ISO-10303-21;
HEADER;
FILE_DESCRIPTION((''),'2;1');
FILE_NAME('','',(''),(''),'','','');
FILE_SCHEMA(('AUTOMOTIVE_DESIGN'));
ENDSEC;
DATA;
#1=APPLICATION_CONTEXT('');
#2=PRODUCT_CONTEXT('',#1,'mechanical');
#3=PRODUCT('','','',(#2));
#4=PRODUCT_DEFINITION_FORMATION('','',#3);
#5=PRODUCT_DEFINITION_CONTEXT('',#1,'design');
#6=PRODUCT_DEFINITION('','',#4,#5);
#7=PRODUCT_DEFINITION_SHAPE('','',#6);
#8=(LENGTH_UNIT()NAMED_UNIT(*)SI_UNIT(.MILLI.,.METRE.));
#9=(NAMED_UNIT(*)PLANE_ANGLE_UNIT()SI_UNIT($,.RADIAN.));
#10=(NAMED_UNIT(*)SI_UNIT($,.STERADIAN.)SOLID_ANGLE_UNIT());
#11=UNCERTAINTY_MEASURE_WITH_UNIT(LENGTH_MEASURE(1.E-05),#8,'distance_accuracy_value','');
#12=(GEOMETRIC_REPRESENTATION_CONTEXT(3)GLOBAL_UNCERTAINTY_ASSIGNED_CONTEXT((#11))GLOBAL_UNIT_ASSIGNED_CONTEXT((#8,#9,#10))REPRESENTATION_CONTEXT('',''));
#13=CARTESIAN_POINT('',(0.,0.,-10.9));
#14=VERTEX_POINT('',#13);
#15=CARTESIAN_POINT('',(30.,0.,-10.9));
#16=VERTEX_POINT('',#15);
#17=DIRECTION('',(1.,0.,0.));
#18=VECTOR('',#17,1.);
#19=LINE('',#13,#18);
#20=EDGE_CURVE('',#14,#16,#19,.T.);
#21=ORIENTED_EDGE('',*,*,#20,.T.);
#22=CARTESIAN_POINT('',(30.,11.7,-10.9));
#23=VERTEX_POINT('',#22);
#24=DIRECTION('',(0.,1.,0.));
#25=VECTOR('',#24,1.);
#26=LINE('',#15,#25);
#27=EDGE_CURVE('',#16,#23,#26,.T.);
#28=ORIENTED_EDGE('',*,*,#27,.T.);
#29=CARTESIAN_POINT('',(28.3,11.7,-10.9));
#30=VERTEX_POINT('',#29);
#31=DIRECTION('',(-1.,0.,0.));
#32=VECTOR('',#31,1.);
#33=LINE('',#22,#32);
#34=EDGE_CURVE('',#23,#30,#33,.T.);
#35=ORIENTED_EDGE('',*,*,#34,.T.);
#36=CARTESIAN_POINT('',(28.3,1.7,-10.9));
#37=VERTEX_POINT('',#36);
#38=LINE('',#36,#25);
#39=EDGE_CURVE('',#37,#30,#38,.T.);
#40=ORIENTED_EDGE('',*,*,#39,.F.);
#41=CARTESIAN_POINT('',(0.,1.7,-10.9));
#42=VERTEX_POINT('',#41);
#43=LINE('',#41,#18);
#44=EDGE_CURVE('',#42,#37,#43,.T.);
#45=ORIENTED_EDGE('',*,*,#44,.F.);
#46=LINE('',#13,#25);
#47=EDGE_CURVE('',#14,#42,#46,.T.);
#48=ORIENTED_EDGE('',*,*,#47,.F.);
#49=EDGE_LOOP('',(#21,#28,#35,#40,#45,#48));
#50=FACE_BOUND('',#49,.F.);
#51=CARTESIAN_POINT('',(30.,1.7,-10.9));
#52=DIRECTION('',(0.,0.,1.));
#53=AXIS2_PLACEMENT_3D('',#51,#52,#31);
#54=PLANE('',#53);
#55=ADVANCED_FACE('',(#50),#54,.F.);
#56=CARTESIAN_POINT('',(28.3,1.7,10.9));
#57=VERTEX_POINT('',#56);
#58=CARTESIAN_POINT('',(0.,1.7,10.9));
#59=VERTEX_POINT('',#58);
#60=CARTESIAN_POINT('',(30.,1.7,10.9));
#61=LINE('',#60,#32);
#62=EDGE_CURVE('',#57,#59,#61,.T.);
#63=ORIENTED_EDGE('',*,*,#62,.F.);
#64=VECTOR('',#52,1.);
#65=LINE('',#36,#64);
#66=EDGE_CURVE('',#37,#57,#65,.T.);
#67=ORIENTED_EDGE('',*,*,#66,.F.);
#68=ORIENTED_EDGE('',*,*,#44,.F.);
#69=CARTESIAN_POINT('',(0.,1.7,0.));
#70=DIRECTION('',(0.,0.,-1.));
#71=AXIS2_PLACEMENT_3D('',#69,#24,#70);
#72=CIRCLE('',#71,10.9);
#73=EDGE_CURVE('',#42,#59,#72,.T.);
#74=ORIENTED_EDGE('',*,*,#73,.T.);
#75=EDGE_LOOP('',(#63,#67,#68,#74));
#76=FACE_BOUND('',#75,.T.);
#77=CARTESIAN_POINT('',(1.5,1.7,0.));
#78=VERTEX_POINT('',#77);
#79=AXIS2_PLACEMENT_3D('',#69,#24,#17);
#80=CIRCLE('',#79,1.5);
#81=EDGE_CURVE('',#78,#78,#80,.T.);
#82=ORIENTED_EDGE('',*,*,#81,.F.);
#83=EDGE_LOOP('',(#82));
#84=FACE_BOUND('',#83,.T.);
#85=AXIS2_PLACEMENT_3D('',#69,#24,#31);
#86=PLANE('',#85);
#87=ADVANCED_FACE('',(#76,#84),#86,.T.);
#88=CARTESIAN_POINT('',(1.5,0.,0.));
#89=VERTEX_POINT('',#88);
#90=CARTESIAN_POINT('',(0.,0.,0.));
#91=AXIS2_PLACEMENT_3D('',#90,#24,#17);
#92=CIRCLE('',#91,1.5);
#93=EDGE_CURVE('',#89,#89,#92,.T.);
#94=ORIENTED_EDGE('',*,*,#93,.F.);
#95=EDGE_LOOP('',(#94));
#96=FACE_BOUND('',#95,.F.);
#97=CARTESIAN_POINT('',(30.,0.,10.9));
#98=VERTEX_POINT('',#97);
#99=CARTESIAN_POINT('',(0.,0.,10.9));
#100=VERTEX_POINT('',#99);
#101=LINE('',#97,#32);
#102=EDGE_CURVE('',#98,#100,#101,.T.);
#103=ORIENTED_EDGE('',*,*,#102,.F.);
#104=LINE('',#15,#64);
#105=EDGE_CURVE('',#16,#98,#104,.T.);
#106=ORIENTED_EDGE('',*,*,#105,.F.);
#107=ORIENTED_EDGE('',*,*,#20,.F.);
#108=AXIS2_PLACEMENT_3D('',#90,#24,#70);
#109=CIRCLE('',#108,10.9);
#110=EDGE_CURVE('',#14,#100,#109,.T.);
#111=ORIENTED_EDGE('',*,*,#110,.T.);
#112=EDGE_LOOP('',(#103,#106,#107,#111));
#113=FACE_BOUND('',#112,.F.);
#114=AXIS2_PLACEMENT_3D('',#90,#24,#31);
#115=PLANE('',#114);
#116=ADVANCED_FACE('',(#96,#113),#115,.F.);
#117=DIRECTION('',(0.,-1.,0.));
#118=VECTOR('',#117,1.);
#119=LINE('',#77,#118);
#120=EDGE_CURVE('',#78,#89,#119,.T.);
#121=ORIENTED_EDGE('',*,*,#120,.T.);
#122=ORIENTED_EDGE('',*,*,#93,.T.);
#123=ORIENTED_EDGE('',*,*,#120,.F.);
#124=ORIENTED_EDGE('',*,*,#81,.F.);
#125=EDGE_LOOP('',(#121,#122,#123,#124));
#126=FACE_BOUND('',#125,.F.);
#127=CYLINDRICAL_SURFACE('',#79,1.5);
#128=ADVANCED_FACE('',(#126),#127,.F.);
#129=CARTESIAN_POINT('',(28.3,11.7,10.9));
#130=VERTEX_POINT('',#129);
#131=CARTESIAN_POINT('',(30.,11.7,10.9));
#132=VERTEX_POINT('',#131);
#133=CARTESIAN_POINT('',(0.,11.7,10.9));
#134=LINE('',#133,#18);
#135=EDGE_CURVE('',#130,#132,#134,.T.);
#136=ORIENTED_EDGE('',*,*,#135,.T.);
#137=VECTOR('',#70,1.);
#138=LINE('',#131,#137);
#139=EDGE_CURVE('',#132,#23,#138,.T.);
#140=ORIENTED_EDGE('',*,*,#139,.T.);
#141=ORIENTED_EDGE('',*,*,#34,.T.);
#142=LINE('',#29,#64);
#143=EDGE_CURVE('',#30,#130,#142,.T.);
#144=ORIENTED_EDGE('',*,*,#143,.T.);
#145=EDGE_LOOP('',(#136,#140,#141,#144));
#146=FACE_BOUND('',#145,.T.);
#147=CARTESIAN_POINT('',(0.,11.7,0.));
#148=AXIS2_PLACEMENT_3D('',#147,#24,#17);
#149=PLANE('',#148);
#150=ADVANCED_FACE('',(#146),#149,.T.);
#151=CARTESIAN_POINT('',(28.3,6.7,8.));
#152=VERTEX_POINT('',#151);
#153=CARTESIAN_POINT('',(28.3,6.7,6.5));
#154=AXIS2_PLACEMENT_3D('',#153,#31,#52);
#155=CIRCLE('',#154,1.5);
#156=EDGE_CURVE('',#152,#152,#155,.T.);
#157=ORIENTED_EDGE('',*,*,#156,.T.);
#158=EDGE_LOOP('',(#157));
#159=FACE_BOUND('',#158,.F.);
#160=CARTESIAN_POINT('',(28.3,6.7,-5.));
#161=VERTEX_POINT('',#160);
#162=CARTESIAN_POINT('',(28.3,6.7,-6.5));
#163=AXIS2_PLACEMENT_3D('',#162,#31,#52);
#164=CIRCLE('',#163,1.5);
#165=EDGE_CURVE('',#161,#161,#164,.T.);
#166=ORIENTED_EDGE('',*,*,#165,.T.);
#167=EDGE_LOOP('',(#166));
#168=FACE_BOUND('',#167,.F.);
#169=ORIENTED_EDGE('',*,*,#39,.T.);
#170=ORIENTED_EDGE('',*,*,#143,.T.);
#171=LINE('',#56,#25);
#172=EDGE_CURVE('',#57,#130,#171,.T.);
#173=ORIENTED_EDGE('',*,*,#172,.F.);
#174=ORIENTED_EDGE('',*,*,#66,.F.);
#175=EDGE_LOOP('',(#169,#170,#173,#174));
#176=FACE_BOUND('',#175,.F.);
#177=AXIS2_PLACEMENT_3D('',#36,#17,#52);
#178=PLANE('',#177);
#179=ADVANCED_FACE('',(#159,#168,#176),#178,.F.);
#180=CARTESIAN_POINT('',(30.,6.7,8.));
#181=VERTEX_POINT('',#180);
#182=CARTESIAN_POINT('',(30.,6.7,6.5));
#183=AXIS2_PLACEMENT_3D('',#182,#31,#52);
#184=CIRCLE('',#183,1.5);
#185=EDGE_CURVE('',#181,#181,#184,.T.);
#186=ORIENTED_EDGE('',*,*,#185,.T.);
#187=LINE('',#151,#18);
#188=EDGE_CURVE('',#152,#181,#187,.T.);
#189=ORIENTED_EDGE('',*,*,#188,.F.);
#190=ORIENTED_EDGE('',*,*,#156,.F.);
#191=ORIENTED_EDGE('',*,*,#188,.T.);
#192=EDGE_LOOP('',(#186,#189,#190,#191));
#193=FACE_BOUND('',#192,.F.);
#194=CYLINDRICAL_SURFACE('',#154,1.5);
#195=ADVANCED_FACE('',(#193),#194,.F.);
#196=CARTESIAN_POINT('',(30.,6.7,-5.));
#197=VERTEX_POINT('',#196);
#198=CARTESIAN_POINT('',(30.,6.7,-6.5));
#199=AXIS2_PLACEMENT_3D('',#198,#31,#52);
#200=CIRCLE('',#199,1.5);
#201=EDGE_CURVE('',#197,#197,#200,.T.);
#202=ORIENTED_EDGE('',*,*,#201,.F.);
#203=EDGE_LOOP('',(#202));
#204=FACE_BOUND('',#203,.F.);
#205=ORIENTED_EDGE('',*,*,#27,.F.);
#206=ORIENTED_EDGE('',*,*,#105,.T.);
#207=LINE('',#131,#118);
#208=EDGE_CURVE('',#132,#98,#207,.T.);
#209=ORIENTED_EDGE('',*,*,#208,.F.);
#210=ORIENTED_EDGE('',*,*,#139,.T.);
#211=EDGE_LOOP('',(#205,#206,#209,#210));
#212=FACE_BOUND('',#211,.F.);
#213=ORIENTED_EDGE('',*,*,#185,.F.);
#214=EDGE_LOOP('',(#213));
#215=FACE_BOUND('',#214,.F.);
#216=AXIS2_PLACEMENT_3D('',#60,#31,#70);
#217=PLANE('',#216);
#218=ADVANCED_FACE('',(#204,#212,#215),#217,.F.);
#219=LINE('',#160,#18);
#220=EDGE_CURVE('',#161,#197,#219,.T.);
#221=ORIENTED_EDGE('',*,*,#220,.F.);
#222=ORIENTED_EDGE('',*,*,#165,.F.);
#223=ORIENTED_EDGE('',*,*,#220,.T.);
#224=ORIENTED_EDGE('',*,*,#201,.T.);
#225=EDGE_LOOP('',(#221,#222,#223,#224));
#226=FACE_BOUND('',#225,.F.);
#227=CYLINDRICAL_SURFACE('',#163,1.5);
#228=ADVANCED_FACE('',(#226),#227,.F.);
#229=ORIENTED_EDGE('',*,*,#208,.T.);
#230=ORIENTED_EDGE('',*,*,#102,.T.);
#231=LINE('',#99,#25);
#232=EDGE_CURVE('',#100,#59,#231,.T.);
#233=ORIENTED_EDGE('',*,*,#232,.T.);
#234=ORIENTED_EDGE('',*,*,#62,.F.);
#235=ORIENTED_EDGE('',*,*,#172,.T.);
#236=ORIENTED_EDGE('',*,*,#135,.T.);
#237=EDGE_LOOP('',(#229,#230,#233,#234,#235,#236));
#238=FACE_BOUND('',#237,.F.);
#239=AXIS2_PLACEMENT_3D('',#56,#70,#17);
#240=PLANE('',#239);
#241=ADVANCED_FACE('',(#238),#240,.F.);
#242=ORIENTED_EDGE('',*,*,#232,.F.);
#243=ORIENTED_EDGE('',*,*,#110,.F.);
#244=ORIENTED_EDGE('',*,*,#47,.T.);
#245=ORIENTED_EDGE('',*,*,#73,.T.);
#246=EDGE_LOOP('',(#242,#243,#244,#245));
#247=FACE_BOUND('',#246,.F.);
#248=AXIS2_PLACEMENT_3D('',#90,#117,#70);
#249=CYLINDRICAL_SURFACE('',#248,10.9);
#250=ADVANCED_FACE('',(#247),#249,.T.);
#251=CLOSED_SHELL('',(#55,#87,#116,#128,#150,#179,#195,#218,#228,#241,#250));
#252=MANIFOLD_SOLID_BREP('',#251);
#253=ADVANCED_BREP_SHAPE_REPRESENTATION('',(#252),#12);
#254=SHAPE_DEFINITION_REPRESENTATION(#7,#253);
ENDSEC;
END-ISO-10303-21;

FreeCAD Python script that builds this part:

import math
import FreeCAD as App
import Part
import Sketcher
from FreeCAD import Vector
Q = App.Units.Quantity


def add_polygon(sketch, points):
    """Adds a closed chain of lines whose ends are joined by coincident constraints."""
    first, n = sketch.GeometryCount, len(points)
    for a, b in zip(points, points[1:] + points[:1]):
        sketch.addGeometry(Part.LineSegment(App.Vector(*a, 0), App.Vector(*b, 0)), False)
    for i in range(n):
        sketch.addConstraint(Sketcher.Constraint("Coincident", first + i, 2, first + (i + 1) % n, 1))

doc = App.newDocument("Part")
body = doc.addObject("PartDesign::Body", "Body")

# Sketch on XZ plane
sketch1 = doc.addObject("Sketcher::SketchObject", "Sketch")
body.addObject(sketch1)
sketch1.AttachmentSupport = (doc.XZ_Plane, [""])
sketch1.MapMode = "FlatFace"
sketch1.addGeometry([
    Part.LineSegment(Vector(30, -11, 0), Vector(0, -11, 0)),
    Part.ArcOfCircle(Part.Circle(Vector(0, 0, 0), Vector(0, 0, 1), 11), math.radians(90), math.radians(270)),
    Part.LineSegment(Vector(0, 11, 0), Vector(30, 11, 0)),
    Part.LineSegment(Vector(30, 11, 0), Vector(30, -11, 0)),
], False)
sketch1.addConstraint([
    Sketcher.Constraint("Tangent", 0, 2, 1, 2),
    Sketcher.Constraint("Tangent", 1, 1, 2, 1),
    Sketcher.Constraint("Coincident", 2, 2, 3, 1),
    Sketcher.Constraint("Coincident", 3, 2, 0, 1),
    Sketcher.Constraint("Horizontal", 0),
    Sketcher.Constraint("Horizontal", 2),
    Sketcher.Constraint("Vertical", 3),
    Sketcher.Constraint("Coincident", 1, 3, -1, 1),
    Sketcher.Constraint("Radius", 1, Q("10.9 mm")),
    Sketcher.Constraint("DistanceX", 0, 2, 0, 1, Q("30 mm")),
])
pad1 = doc.addObject("PartDesign::Pad", "Pad")
body.addObject(pad1)
pad1.Profile = sketch1
pad1.Length = 1.7
pad1.Reversed = True

# Sketch on XZ plane
sketch2 = doc.addObject("Sketcher::SketchObject", "Sketch001")
body.addObject(sketch2)
sketch2.AttachmentSupport = (doc.XZ_Plane, [""])
sketch2.MapMode = "FlatFace"
sketch2.AttachmentOffset = App.Placement(Vector(0, 0, -1.7), App.Rotation())
sketch2.addGeometry(Part.Circle(Vector(0, 0, 0), Vector(0, 0, 1), 1.5), False)
sketch2.addConstraint([
    Sketcher.Constraint("Coincident", 0, 3, -1, 1),
    Sketcher.Constraint("Diameter", 0, Q("3 mm")),
])
pocket1 = doc.addObject("PartDesign::Pocket", "Pocket")
body.addObject(pocket1)
pocket1.Profile = sketch2
pocket1.Length = 1.7
pocket1.Reversed = True

# Sketch on XZ plane
sketch3 = doc.addObject("Sketcher::SketchObject", "Sketch002")
body.addObject(sketch3)
sketch3.AttachmentSupport = (doc.XZ_Plane, [""])
sketch3.MapMode = "FlatFace"
sketch3.AttachmentOffset = App.Placement(Vector(0, 0, -1.7), App.Rotation())
add_polygon(sketch3, [(30, 10.9), (30, -10.9), (28.3, -10.9), (28.3, 10.9)])  # lines 0-3
sketch3.addConstraint([
    Sketcher.Constraint("Vertical", 0),
    Sketcher.Constraint("Horizontal", 1),
    Sketcher.Constraint("Vertical", 2),
    Sketcher.Constraint("Horizontal", 3),
    Sketcher.Constraint("DistanceX", 1, 2, 1, 1, Q("1.7 mm")),
    Sketcher.Constraint("DistanceY", 0, 2, 0, 1, Q("21.8 mm")),
    Sketcher.Constraint("DistanceX", -1, 1, 0, 2, Q("30 mm")),
    Sketcher.Constraint("DistanceY", 0, 2, -1, 1, Q("10.9 mm")),
])
pad2 = doc.addObject("PartDesign::Pad", "Pad001")
body.addObject(pad2)
pad2.Profile = sketch3
pad2.Length = 10
pad2.Reversed = True

# Sketch on YZ plane
sketch4 = doc.addObject("Sketcher::SketchObject", "Sketch003")
body.addObject(sketch4)
sketch4.AttachmentSupport = (doc.YZ_Plane, [""])
sketch4.MapMode = "FlatFace"
sketch4.AttachmentOffset = App.Placement(Vector(0, 0, 28.3), App.Rotation())
sketch4.addGeometry([
    Part.Circle(Vector(6.7, -6.5, 0), Vector(0, 0, 1), 1.5),
    Part.Circle(Vector(6.7, 6.5, 0), Vector(0, 0, 1), 1.5),
], False)
sketch4.addConstraint([
    Sketcher.Constraint("Equal", 0, 1),
    Sketcher.Constraint("Symmetric", 0, 3, 1, 3, -1),
    Sketcher.Constraint("Diameter", 0, Q("3 mm")),
    Sketcher.Constraint("DistanceY", 0, 3, 1, 3, Q("13 mm")),
    Sketcher.Constraint("DistanceX", -1, 1, 0, 3, Q("6.7 mm")),
])
pocket2 = doc.addObject("PartDesign::Pocket", "Pocket001")
body.addObject(pocket2)
pocket2.Profile = sketch4
pocket2.Length = 10
pocket2.Reversed = True

doc.recompute()
